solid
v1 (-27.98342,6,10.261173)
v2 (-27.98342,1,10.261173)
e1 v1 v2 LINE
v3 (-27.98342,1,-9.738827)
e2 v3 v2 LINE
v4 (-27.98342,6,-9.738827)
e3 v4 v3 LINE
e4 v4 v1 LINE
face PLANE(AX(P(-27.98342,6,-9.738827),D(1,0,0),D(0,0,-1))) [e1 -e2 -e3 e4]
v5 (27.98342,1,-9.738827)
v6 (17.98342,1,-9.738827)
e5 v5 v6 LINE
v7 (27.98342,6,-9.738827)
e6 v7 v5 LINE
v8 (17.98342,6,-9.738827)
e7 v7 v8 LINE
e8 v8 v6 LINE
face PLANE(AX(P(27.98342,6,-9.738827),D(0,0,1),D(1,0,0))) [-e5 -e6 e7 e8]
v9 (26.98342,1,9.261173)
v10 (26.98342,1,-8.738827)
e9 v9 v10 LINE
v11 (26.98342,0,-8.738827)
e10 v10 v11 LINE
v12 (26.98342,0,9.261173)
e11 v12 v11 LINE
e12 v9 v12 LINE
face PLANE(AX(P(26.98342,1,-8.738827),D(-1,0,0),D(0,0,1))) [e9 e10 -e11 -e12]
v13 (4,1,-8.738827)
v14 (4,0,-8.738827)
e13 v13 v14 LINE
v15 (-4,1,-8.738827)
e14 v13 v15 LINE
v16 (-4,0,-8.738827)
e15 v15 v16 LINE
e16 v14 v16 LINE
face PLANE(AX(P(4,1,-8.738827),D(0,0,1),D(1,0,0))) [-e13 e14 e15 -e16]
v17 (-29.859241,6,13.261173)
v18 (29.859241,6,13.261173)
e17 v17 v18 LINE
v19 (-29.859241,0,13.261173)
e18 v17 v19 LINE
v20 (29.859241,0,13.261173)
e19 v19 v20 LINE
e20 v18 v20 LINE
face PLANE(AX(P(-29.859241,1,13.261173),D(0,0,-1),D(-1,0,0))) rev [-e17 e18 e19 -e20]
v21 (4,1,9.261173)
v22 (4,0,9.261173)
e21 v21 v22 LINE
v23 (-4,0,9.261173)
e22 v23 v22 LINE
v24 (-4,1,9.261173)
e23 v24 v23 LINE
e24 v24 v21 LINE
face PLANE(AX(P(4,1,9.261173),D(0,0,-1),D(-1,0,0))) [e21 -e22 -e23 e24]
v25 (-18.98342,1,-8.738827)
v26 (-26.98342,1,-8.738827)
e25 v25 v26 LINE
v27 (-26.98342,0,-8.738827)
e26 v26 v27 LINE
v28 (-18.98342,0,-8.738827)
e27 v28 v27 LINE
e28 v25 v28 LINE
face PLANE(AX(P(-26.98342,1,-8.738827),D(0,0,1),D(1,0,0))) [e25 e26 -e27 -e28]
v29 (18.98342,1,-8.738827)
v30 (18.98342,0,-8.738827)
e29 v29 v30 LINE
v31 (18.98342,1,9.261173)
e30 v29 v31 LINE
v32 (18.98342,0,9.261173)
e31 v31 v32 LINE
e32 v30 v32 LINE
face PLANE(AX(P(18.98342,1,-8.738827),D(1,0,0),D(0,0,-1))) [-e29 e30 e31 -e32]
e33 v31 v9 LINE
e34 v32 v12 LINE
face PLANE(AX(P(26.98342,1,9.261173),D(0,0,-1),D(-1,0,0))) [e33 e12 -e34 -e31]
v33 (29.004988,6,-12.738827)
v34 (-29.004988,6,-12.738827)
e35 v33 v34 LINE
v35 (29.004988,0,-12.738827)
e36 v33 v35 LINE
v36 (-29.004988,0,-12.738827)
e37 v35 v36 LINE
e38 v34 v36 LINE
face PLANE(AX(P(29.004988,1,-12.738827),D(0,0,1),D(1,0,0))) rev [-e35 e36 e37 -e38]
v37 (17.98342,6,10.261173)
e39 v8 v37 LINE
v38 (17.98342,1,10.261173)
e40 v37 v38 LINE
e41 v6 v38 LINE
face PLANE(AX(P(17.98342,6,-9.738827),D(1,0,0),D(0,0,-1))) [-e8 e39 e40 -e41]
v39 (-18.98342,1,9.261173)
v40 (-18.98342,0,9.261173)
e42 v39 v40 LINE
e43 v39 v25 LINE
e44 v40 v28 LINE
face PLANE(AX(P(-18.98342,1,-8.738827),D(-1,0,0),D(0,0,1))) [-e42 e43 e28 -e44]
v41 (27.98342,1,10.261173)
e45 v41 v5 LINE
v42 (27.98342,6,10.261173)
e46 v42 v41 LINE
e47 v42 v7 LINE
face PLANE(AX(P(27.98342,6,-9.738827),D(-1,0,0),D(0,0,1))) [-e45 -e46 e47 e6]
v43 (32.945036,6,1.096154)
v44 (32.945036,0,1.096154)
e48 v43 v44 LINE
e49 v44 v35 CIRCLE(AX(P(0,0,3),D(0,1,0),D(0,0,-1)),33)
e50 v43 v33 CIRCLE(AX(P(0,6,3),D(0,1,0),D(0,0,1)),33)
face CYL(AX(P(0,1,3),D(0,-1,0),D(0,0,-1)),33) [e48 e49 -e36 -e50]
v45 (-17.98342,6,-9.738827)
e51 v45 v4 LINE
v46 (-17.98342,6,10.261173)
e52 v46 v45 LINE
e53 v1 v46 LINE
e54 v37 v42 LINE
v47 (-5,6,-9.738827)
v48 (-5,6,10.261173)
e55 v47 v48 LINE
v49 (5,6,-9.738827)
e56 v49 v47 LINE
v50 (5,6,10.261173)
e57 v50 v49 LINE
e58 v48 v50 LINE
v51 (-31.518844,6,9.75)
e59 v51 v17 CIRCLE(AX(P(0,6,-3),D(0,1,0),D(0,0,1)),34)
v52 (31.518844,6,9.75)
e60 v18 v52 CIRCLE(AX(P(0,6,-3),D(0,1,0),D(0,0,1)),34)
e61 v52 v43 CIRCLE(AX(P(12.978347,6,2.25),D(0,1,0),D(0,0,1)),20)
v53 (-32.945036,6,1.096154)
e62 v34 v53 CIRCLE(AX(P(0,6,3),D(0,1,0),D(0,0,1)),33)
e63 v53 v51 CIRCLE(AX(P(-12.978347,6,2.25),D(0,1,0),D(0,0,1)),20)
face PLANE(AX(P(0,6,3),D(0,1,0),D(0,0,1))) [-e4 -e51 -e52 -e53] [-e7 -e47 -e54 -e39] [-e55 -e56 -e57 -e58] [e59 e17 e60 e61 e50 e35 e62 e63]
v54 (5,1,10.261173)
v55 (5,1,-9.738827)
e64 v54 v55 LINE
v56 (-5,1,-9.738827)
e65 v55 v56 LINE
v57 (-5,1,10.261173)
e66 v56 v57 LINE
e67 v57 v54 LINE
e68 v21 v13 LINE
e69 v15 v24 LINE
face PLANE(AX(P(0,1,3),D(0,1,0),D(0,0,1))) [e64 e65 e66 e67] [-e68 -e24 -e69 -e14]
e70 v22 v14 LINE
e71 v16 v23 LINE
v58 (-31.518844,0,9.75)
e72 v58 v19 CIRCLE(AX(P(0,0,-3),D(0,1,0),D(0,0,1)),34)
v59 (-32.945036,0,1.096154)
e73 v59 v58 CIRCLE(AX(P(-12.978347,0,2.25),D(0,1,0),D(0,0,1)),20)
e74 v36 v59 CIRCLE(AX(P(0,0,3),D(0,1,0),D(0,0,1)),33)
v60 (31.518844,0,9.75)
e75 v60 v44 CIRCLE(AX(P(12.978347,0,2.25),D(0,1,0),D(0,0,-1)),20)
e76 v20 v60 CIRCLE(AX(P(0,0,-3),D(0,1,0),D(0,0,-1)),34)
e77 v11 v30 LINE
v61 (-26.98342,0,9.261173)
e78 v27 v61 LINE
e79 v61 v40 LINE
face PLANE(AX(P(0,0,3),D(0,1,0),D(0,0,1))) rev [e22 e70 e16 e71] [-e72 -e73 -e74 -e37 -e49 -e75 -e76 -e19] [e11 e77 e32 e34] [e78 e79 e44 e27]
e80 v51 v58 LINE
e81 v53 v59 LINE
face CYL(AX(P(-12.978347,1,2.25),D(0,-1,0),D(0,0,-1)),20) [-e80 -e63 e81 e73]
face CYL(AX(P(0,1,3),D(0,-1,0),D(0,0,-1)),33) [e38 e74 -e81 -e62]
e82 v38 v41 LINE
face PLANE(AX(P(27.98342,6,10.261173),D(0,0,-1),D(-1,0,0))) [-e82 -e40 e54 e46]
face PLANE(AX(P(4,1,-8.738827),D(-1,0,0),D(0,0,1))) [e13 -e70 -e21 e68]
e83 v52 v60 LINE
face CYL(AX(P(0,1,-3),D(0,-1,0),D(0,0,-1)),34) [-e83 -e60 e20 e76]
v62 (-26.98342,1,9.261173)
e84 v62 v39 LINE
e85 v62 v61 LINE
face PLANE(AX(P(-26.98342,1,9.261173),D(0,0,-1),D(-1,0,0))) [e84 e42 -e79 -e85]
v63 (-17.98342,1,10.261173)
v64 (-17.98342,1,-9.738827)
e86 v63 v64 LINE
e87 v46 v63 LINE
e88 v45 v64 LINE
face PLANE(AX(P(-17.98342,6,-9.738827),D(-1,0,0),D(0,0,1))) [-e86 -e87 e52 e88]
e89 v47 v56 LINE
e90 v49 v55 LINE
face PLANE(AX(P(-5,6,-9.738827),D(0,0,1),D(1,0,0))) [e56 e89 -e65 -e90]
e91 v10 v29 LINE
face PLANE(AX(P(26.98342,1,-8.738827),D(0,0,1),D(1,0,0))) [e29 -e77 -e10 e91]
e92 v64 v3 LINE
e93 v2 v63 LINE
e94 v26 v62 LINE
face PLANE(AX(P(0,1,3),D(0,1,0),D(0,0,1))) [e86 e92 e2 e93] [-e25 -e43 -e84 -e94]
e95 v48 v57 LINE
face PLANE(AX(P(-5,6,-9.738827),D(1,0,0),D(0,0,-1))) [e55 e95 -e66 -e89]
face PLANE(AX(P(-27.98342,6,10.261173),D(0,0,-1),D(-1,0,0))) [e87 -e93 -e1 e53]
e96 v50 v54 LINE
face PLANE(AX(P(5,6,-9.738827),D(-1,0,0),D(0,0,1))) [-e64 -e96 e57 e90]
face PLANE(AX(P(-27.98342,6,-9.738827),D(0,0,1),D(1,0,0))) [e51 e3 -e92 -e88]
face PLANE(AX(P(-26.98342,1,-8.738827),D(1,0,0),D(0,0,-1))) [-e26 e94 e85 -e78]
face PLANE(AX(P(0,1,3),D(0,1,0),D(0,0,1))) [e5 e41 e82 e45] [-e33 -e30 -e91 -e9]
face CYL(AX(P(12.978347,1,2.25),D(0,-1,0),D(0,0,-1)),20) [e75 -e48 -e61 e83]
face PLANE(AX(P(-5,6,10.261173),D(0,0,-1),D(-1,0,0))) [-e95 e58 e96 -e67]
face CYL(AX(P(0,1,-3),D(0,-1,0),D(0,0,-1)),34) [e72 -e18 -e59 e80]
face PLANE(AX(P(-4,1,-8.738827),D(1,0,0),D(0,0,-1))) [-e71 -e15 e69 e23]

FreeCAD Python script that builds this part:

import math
import FreeCAD as App
import Part
import Sketcher
from FreeCAD import Vector

doc = App.newDocument("Part")
params = doc.addObject("Spreadsheet::Sheet", "Params")
for row, (alias, value) in enumerate([
    ("sketch1_radius", "33 mm"),
    ("sketch1_radius2", "20 mm"),
    ("sketch1_radius3", "34 mm"),
    ("sketch1_width", "8 mm"),
    ("sketch1_height", "18 mm"),
    ("pad1_length", "1 mm"),
    ("sketch2_radius", "33 mm"),
    ("sketch2_radius2", "20 mm"),
    ("sketch2_radius3", "34 mm"),
    ("sketch2_width", "10 mm"),
    ("sketch2_height", "20 mm"),
    ("pad2_length", "5 mm"),
], start=1):
    params.set(f"A{row}", alias)
    params.set(f"B{row}", "=" + value)
    params.setAlias(f"B{row}", alias)

body = doc.addObject("PartDesign::Body", "Body")

# Sketch on XZ plane
sketch1 = body.newObject("Sketcher::SketchObject", "Sketch")
sketch1.AttachmentSupport = (doc.getObject("XZ_Plane"), [""])
sketch1.MapMode = "FlatFace"
sketch1.addGeometry([
    Part.LineSegment(Vector(29, -12.7, 0), Vector(-29, -12.7, 0)),  # 0
    Part.ArcOfCircle(Part.Circle(Vector(0, 3, 0), Vector(0, 0, 1), 33), math.radians(-177), math.radians(-152)),  # 1
    Part.ArcOfCircle(Part.Circle(Vector(-13, 2.3, 0), Vector(0, 0, 1), 20), math.radians(158), math.radians(183)),  # 2
    Part.ArcOfCircle(Part.Circle(Vector(0, -3, 0), Vector(0, 0, 1), 34), math.radians(151.43), math.radians(157.98)),  # 3
    Part.LineSegment(Vector(-29.9, 13.3, 0), Vector(29.9, 13.3, 0)),  # 4
    Part.ArcOfCircle(Part.Circle(Vector(0, -3, 0), Vector(0, 0, 1), 34), math.radians(22.02), math.radians(28.57)),  # 5
    Part.ArcOfCircle(Part.Circle(Vector(13, 2.3, 0), Vector(0, 0, 1), 20), math.radians(-3), math.radians(22)),  # 6
    Part.ArcOfCircle(Part.Circle(Vector(0, 3, 0), Vector(0, 0, 1), 33), math.radians(-28), math.radians(-3)),  # 7
    Part.LineSegment(Vector(-19, 9.3, 0), Vector(-27, 9.3, 0)),  # 8
    Part.LineSegment(Vector(-27, 9.3, 0), Vector(-27, -8.7, 0)),  # 9
    Part.LineSegment(Vector(-27, -8.7, 0), Vector(-19, -8.7, 0)),  # 10
    Part.LineSegment(Vector(-19, -8.7, 0), Vector(-19, 9.3, 0)),  # 11
    Part.LineSegment(Vector(4, 9.3, 0), Vector(-4, 9.3, 0)),  # 12
    Part.LineSegment(Vector(-4, 9.3, 0), Vector(-4, -8.7, 0)),  # 13
    Part.LineSegment(Vector(-4, -8.7, 0), Vector(4, -8.7, 0)),  # 14
    Part.LineSegment(Vector(4, -8.7, 0), Vector(4, 9.3, 0)),  # 15
    Part.LineSegment(Vector(27, 9.3, 0), Vector(19, 9.3, 0)),  # 16
    Part.LineSegment(Vector(19, 9.3, 0), Vector(19, -8.7, 0)),  # 17
    Part.LineSegment(Vector(19, -8.7, 0), Vector(27, -8.7, 0)),  # 18
    Part.LineSegment(Vector(27, -8.7, 0), Vector(27, 9.3, 0)),  # 19
], False)
sketch1.addConstraint([
    Sketcher.Constraint("Coincident", 0, 2, 1, 2),
    Sketcher.Constraint("Tangent", 1, 1, 2, 2),
    Sketcher.Constraint("Tangent", 2, 1, 3, 2),
    Sketcher.Constraint("Coincident", 3, 1, 4, 1),
    Sketcher.Constraint("Coincident", 4, 2, 5, 2),
    Sketcher.Constraint("Tangent", 5, 1, 6, 2),
    Sketcher.Constraint("Tangent", 6, 1, 7, 2),
    Sketcher.Constraint("Coincident", 7, 1, 0, 1),
    Sketcher.Constraint("Coincident", 8, 2, 9, 1),
    Sketcher.Constraint("Coincident", 9, 2, 10, 1),
    Sketcher.Constraint("Coincident", 10, 2, 11, 1),
    Sketcher.Constraint("Coincident", 11, 2, 8, 1),
    Sketcher.Constraint("Coincident", 12, 2, 13, 1),
    Sketcher.Constraint("Coincident", 13, 2, 14, 1),
    Sketcher.Constraint("Coincident", 14, 2, 15, 1),
    Sketcher.Constraint("Coincident", 15, 2, 12, 1),
    Sketcher.Constraint("Coincident", 16, 2, 17, 1),
    Sketcher.Constraint("Coincident", 17, 2, 18, 1),
    Sketcher.Constraint("Coincident", 18, 2, 19, 1),
    Sketcher.Constraint("Coincident", 19, 2, 16, 1),
    Sketcher.Constraint("Horizontal", 0),
    Sketcher.Constraint("Horizontal", 4),
    Sketcher.Constraint("Horizontal", 8),
    Sketcher.Constraint("Vertical", 9),
    Sketcher.Constraint("Horizontal", 10),
    Sketcher.Constraint("Vertical", 11),
    Sketcher.Constraint("Horizontal", 12),
    Sketcher.Constraint("Vertical", 13),
    Sketcher.Constraint("Horizontal", 14),
    Sketcher.Constraint("Vertical", 15),
    Sketcher.Constraint("Horizontal", 16),
    Sketcher.Constraint("Vertical", 17),
    Sketcher.Constraint("Horizontal", 18),
    Sketcher.Constraint("Vertical", 19),
    Sketcher.Constraint("Coincident", 5, 3, 3, 3),
    Sketcher.Constraint("Coincident", 7, 3, 1, 3),
    Sketcher.Constraint("Equal", 3, 5),
    Sketcher.Constraint("Equal", 2, 6),
    Sketcher.Constraint("Equal", 1, 7),
    Sketcher.Constraint("Symmetric", 1, 3, 3, 3, -1, 1),
    Sketcher.Constraint("Symmetric", 11, 2, 16, 2, -2),
    Sketcher.Constraint("Symmetric", 9, 2, 18, 2, -2),
    Sketcher.Constraint("PointOnObject", 1, 3, -2),
    Sketcher.Constraint("Horizontal", 11, 2, 12, 2),
    Sketcher.Constraint("Horizontal", 10, 2, 13, 2),
    Sketcher.Constraint("Equal", 10, 12),
    Sketcher.Constraint("Radius", 1, 33.0),
    Sketcher.Constraint("Radius", 2, 20.0),
    Sketcher.Constraint("Radius", 3, 34.0),
    Sketcher.Constraint("DistanceX", 8, 2, 8, 1, 8.0),
    Sketcher.Constraint("DistanceY", 9, 2, 9, 1, 18.0),
    Sketcher.Constraint("DistanceY", -1, 1, 1, 3, 3.0),
    Sketcher.Constraint("DistanceX", 12, 2, -1, 1, 4.0),
    Sketcher.Constraint("DistanceY", 0, 2, 3, 1, 26.0),
    Sketcher.Constraint("DistanceY", 8, 2, 3, 1, 4.0),
    Sketcher.Constraint("DistanceX", 4, 1, 4, 2, 59.718481),
    Sketcher.Constraint("DistanceX", 8, 2, -1, 1, 26.98342),
])
sketch1.setExpression("Constraints[46]", "Params.sketch1_radius")
sketch1.setExpression("Constraints[47]", "Params.sketch1_radius2")
sketch1.setExpression("Constraints[48]", "Params.sketch1_radius3")
sketch1.setExpression("Constraints[49]", "Params.sketch1_width")
sketch1.setExpression("Constraints[50]", "Params.sketch1_height")
pad1 = body.newObject("PartDesign::Pad", "Pad")
pad1.Profile = sketch1
pad1.setExpression("Length", "Params.pad1_length")
pad1.Reversed = True

# Sketch on XZ plane
sketch2 = body.newObject("Sketcher::SketchObject", "Sketch001")
sketch2.AttachmentSupport = (doc.getObject("XZ_Plane"), [""])
sketch2.MapMode = "FlatFace"
sketch2.AttachmentOffset = App.Placement(Vector(0, 0, -1), App.Rotation())
sketch2.addGeometry([
    Part.LineSegment(Vector(29, -12.7, 0), Vector(-29, -12.7, 0)),  # 0
    Part.ArcOfCircle(Part.Circle(Vector(0, 3, 0), Vector(0, 0, 1), 33), math.radians(-177), math.radians(-152)),  # 1
    Part.ArcOfCircle(Part.Circle(Vector(-13, 2.3, 0), Vector(0, 0, 1), 20), math.radians(158), math.radians(183)),  # 2
    Part.ArcOfCircle(Part.Circle(Vector(0, -3, 0), Vector(0, 0, 1), 34), math.radians(151.43), math.radians(157.98)),  # 3
    Part.LineSegment(Vector(-29.9, 13.3, 0), Vector(29.9, 13.3, 0)),  # 4
    Part.ArcOfCircle(Part.Circle(Vector(0, -3, 0), Vector(0, 0, 1), 34), math.radians(22.02), math.radians(28.57)),  # 5
    Part.ArcOfCircle(Part.Circle(Vector(13, 2.3, 0), Vector(0, 0, 1), 20), math.radians(-3), math.radians(22)),  # 6
    Part.ArcOfCircle(Part.Circle(Vector(0, 3, 0), Vector(0, 0, 1), 33), math.radians(-28), math.radians(-3)),  # 7
    Part.LineSegment(Vector(18, 10.3, 0), Vector(18, -9.7, 0)),  # 8
    Part.LineSegment(Vector(18, -9.7, 0), Vector(28, -9.7, 0)),  # 9
    Part.LineSegment(Vector(28, -9.7, 0), Vector(28, 10.3, 0)),  # 10
    Part.LineSegment(Vector(28, 10.3, 0), Vector(18, 10.3, 0)),  # 11
    Part.LineSegment(Vector(-5, 10.3, 0), Vector(-5, -9.7, 0)),  # 12
    Part.LineSegment(Vector(-5, -9.7, 0), Vector(5, -9.7, 0)),  # 13
    Part.LineSegment(Vector(5, -9.7, 0), Vector(5, 10.3, 0)),  # 14
    Part.LineSegment(Vector(5, 10.3, 0), Vector(-5, 10.3, 0)),  # 15
    Part.LineSegment(Vector(-28, 10.3, 0), Vector(-28, -9.7, 0)),  # 16
    Part.LineSegment(Vector(-28, -9.7, 0), Vector(-18, -9.7, 0)),  # 17
    Part.LineSegment(Vector(-18, -9.7, 0), Vector(-18, 10.3, 0)),  # 18
    Part.LineSegment(Vector(-18, 10.3, 0), Vector(-28, 10.3, 0)),  # 19
], False)
sketch2.addConstraint([
    Sketcher.Constraint("Coincident", 0, 2, 1, 2),
    Sketcher.Constraint("Tangent", 1, 1, 2, 2),
    Sketcher.Constraint("Tangent", 2, 1, 3, 2),
    Sketcher.Constraint("Coincident", 3, 1, 4, 1),
    Sketcher.Constraint("Coincident", 4, 2, 5, 2),
    Sketcher.Constraint("Tangent", 5, 1, 6, 2),
    Sketcher.Constraint("Tangent", 6, 1, 7, 2),
    Sketcher.Constraint("Coincident", 7, 1, 0, 1),
    Sketcher.Constraint("Coincident", 8, 2, 9, 1),
    Sketcher.Constraint("Coincident", 9, 2, 10, 1),
    Sketcher.Constraint("Coincident", 10, 2, 11, 1),
    Sketcher.Constraint("Coincident", 11, 2, 8, 1),
    Sketcher.Constraint("Coincident", 12, 2, 13, 1),
    Sketcher.Constraint("Coincident", 13, 2, 14, 1),
    Sketcher.Constraint("Coincident", 14, 2, 15, 1),
    Sketcher.Constraint("Coincident", 15, 2, 12, 1),
    Sketcher.Constraint("Coincident", 16, 2, 17, 1),
    Sketcher.Constraint("Coincident", 17, 2, 18, 1),
    Sketcher.Constraint("Coincident", 18, 2, 19, 1),
    Sketcher.Constraint("Coincident", 19, 2, 16, 1),
    Sketcher.Constraint("Horizontal", 0),
    Sketcher.Constraint("Horizontal", 4),
    Sketcher.Constraint("Vertical", 8),
    Sketcher.Constraint("Horizontal", 9),
    Sketcher.Constraint("Vertical", 10),
    Sketcher.Constraint("Horizontal", 11),
    Sketcher.Constraint("Vertical", 12),
    Sketcher.Constraint("Horizontal", 13),
    Sketcher.Constraint("Vertical", 14),
    Sketcher.Constraint("Horizontal", 15),
    Sketcher.Constraint("Vertical", 16),
    Sketcher.Constraint("Horizontal", 17),
    Sketcher.Constraint("Vertical", 18),
    Sketcher.Constraint("Horizontal", 19),
    Sketcher.Constraint("Coincident", 5, 3, 3, 3),
    Sketcher.Constraint("Coincident", 7, 3, 1, 3),
    Sketcher.Constraint("Equal", 3, 5),
    Sketcher.Constraint("Equal", 2, 6),
    Sketcher.Constraint("Equal", 1, 7),
    Sketcher.Constraint("Symmetric", 1, 3, 3, 3, -1, 1),
    Sketcher.Constraint("Symmetric", 9, 2, 16, 2, -2),
    Sketcher.Constraint("Symmetric", 11, 2, 18, 2, -2),
    Sketcher.Constraint("PointOnObject", 1, 3, -2),
    Sketcher.Constraint("Horizontal", 9, 2, 12, 2),
    Sketcher.Constraint("Horizontal", 11, 2, 14, 2),
    Sketcher.Constraint("Equal", 11, 13),
    Sketcher.Constraint("Radius", 1, 33.0),
    Sketcher.Constraint("Radius", 2, 20.0),
    Sketcher.Constraint("Radius", 3, 34.0),
    Sketcher.Constraint("DistanceX", 9, 1, 9, 2, 10.0),
    Sketcher.Constraint("DistanceY", 8, 2, 8, 1, 20.0),
    Sketcher.Constraint("DistanceY", -1, 1, 1, 3, 3.0),
    Sketcher.Constraint("DistanceX", 12, 2, -1, 1, 5.0),
    Sketcher.Constraint("DistanceY", 0, 2, 3, 1, 26.0),
    Sketcher.Constraint("DistanceY", 7, 1, 8, 2, 3.0),
    Sketcher.Constraint("DistanceX", 4, 1, 4, 2, 59.718481),
    Sketcher.Constraint("DistanceX", -1, 1, 8, 2, 17.98342),
])
sketch2.setExpression("Constraints[46]", "Params.sketch2_radius")
sketch2.setExpression("Constraints[47]", "Params.sketch2_radius2")
sketch2.setExpression("Constraints[48]", "Params.sketch2_radius3")
sketch2.setExpression("Constraints[49]", "Params.sketch2_width")
sketch2.setExpression("Constraints[50]", "Params.sketch2_height")
pad2 = body.newObject("PartDesign::Pad", "Pad001")
pad2.Profile = sketch2
pad2.setExpression("Length", "Params.pad2_length")
pad2.Reversed = True

doc.recompute()
